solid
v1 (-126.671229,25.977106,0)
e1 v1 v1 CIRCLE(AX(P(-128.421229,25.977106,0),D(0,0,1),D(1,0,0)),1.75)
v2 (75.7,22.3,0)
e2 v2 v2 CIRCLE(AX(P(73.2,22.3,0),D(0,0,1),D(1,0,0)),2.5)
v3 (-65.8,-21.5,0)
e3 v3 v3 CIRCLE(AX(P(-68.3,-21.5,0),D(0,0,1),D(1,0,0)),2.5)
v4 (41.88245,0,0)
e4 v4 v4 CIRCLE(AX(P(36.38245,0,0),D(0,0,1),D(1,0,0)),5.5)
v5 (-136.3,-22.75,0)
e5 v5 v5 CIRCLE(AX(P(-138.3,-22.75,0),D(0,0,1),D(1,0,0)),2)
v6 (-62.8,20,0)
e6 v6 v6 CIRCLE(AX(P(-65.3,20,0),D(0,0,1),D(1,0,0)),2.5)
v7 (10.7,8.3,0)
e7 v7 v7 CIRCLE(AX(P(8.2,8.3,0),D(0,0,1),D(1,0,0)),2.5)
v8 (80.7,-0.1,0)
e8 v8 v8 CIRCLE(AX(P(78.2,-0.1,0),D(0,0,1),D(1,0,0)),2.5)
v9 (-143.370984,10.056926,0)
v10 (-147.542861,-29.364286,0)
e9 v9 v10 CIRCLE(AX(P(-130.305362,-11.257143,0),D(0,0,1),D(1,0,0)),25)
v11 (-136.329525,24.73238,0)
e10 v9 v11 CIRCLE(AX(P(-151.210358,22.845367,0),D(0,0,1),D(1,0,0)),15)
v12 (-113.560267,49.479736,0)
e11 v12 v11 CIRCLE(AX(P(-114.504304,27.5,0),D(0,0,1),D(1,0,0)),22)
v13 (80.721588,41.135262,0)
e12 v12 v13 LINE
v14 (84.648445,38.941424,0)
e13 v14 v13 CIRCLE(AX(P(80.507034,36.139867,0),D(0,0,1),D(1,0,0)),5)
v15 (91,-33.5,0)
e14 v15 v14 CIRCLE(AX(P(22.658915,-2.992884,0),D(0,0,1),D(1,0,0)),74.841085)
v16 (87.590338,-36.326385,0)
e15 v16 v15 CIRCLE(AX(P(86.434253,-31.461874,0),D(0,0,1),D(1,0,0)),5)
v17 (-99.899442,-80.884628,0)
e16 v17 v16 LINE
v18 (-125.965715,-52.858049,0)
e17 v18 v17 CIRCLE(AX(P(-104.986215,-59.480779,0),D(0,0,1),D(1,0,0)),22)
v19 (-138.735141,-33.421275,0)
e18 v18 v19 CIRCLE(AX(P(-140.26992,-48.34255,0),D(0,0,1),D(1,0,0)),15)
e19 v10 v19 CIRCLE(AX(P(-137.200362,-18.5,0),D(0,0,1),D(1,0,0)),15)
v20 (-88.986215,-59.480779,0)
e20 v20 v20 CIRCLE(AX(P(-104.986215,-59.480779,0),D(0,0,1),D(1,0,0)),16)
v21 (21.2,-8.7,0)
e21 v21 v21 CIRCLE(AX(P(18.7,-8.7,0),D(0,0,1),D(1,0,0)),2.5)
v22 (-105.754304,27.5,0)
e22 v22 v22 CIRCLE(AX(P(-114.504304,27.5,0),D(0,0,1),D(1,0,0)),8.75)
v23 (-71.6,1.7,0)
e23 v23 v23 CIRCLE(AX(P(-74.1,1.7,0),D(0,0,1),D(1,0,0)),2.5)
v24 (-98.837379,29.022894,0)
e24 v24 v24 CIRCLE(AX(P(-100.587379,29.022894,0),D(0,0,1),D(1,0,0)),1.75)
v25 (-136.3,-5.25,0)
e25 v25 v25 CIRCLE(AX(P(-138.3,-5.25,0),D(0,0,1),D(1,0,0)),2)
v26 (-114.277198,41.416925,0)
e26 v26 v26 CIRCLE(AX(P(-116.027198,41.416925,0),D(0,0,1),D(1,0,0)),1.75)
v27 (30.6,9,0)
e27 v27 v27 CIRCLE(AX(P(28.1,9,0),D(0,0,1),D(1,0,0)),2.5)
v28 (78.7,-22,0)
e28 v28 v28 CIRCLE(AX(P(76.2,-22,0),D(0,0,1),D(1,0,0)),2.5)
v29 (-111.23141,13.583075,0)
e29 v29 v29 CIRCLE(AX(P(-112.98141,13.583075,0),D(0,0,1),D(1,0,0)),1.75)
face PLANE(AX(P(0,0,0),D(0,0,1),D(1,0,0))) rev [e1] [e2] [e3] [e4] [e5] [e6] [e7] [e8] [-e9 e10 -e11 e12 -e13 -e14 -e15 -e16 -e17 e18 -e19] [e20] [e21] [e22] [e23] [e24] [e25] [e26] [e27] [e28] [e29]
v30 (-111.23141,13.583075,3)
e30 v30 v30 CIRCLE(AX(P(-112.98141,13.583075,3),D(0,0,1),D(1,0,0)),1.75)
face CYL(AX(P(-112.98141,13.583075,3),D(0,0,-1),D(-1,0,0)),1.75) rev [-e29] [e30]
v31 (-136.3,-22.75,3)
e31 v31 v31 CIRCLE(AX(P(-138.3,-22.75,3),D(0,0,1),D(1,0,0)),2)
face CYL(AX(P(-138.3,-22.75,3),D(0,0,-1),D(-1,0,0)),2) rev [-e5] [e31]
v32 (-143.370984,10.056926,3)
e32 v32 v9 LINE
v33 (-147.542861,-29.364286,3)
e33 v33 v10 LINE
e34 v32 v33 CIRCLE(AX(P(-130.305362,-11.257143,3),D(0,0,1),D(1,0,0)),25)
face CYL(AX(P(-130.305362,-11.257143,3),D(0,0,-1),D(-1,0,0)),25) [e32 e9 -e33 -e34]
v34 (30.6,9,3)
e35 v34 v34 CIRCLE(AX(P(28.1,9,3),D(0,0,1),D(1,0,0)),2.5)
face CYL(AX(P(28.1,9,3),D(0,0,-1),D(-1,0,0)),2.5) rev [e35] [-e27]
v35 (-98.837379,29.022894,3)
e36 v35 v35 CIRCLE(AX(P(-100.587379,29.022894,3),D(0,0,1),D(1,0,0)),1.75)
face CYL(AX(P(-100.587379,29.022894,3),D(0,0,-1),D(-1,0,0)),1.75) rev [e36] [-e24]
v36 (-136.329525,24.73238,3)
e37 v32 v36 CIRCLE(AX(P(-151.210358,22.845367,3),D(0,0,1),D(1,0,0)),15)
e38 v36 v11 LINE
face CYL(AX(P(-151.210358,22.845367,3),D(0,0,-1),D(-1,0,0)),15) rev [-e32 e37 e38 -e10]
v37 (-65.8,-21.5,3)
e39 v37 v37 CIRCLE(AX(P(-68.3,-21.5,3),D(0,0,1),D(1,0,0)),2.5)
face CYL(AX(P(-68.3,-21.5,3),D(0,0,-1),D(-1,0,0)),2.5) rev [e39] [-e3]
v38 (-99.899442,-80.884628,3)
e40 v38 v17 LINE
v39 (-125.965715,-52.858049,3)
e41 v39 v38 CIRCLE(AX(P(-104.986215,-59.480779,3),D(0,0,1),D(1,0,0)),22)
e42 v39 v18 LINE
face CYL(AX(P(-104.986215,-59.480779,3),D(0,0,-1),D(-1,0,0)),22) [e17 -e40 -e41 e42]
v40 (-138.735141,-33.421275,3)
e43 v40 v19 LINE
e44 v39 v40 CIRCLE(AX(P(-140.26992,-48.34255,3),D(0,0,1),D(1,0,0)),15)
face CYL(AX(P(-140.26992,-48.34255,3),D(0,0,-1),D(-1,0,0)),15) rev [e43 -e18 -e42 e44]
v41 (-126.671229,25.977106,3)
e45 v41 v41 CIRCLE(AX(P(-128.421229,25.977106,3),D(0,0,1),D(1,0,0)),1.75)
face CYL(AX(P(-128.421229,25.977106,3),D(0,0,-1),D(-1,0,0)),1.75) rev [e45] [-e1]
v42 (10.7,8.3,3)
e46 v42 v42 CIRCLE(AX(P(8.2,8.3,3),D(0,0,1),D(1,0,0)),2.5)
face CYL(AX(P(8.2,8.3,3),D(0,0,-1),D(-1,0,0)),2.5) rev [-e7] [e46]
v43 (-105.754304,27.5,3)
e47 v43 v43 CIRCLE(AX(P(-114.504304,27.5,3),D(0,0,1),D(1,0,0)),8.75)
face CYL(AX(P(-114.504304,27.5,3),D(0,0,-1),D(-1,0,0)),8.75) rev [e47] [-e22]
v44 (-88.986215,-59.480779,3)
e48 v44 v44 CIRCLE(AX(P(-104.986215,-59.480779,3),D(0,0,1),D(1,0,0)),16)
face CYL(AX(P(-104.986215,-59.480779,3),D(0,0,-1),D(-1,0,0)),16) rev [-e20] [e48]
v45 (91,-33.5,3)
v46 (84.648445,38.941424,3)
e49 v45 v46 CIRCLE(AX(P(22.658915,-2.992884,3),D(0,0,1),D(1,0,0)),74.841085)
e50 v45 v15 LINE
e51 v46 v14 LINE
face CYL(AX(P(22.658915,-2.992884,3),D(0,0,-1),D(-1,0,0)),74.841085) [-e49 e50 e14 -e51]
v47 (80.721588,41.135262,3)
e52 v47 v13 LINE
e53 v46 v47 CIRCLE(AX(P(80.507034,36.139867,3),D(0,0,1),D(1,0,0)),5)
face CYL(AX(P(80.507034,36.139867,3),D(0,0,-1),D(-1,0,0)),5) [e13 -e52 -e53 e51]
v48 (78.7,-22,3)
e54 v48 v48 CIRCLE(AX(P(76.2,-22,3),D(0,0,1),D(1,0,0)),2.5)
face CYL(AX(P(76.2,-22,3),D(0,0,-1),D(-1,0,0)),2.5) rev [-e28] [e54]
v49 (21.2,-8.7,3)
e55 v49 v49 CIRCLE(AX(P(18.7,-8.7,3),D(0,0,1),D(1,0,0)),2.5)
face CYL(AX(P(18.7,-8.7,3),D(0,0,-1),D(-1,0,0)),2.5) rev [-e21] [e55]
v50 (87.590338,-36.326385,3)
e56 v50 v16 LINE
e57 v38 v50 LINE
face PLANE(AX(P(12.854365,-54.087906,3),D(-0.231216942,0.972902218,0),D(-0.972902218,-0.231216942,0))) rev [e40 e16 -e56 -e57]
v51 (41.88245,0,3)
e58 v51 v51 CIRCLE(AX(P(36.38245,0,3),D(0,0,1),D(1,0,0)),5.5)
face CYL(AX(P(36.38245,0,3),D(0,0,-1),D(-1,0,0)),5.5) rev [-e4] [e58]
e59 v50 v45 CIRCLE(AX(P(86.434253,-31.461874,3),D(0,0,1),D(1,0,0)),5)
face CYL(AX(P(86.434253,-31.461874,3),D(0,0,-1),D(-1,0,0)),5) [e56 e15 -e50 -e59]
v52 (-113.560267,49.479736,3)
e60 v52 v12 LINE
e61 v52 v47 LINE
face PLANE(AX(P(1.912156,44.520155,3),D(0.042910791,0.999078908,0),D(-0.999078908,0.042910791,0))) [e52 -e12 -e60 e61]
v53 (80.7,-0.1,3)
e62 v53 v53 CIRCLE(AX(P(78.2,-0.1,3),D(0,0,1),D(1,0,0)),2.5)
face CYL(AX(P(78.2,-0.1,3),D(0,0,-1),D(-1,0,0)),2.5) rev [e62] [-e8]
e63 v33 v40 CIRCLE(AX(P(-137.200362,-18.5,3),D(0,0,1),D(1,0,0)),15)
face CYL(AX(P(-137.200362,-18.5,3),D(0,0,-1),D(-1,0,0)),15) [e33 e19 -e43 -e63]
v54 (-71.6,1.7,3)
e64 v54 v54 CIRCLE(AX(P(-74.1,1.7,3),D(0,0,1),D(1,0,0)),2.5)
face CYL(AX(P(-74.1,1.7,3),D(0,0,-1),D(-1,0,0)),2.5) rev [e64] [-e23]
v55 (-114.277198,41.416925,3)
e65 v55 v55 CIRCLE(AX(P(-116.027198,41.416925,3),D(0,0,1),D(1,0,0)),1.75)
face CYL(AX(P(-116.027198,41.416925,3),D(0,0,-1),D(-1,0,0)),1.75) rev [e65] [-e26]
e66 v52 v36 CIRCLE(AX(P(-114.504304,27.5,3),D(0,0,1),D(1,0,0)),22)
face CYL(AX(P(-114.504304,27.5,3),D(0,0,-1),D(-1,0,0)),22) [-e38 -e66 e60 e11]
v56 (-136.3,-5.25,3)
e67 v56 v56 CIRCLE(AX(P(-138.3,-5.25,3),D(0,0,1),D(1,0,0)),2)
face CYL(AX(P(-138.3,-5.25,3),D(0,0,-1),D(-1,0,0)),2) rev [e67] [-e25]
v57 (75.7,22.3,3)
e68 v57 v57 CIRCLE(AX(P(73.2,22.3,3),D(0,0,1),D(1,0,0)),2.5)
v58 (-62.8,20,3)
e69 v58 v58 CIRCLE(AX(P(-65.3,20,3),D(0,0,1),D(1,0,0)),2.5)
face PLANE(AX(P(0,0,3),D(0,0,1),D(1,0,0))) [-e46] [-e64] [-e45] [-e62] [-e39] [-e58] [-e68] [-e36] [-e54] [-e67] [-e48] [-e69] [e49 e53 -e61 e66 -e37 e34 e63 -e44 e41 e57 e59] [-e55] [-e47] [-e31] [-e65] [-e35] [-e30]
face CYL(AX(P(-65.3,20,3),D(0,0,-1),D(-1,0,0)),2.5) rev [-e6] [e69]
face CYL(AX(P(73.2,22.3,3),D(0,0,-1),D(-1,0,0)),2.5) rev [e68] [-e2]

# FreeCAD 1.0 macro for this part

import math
import FreeCAD as App
import Part
import Sketcher

doc = App.newDocument("Part")
body = doc.addObject("PartDesign::Body", "Body")

# Sketch on XY plane
sketch1 = body.newObject("Sketcher::SketchObject", "Sketch")
sketch1.AttachmentSupport = (doc.getObject("XY_Plane"), [""])
sketch1.MapMode = "FlatFace"
sketch1.addGeometry([
    Part.ArcOfCircle(Part.Circle(App.Vector(-114.504304, 27.5, 0), App.Vector(0, 0, 1), 22), math.radians(87.540638), math.radians(187.227009)),  # 0
    Part.ArcOfCircle(Part.Circle(App.Vector(-151.210358, 22.845367, 0), App.Vector(0, 0, 1), 15), math.radians(-58.491511), math.radians(7.227009)),  # 1
    Part.ArcOfCircle(Part.Circle(App.Vector(-130.305362, -11.257143, 0), App.Vector(0, 0, 1), 25), math.radians(121.508489), math.radians(226.40946)),  # 2
    Part.ArcOfCircle(Part.Circle(App.Vector(-137.200362, -18.5, 0), App.Vector(0, 0, 1), 15), math.radians(-133.59054), math.radians(-95.872702)),  # 3
    Part.ArcOfCircle(Part.Circle(App.Vector(-140.26992, -48.34255, 0), App.Vector(0, 0, 1), 15), math.radians(-17.519671), math.radians(84.127298)),  # 4
    Part.ArcOfCircle(Part.Circle(App.Vector(-104.986215, -59.480779, 0), App.Vector(0, 0, 1), 22), math.radians(162.480329), math.radians(283.368728)),  # 5
    Part.LineSegment(App.Vector(-99.899443, -80.884628, 0), App.Vector(87.590338, -36.326385, 0)),  # 6
    Part.ArcOfCircle(Part.Circle(App.Vector(86.434253, -31.461874, 0), App.Vector(0, 0, 1), 5), math.radians(-76.631271), math.radians(-24.055744)),  # 7
    Part.ArcOfCircle(Part.Circle(App.Vector(22.658915, -2.992884, 0), App.Vector(0, 0, 1), 74.841085), math.radians(-24.055744), math.radians(34.077332)),  # 8
    Part.ArcOfCircle(Part.Circle(App.Vector(80.507034, 36.139867, 0), App.Vector(0, 0, 1), 5), math.radians(34.077332), math.radians(87.540638)),  # 9
    Part.LineSegment(App.Vector(80.721588, 41.135262, 0), App.Vector(-113.560267, 49.479736, 0)),  # 10
    Part.Circle(App.Vector(-104.986215, -59.480779, 0), App.Vector(0, 0, 1), 16),  # 11
    Part.Circle(App.Vector(-138.3, -22.75, 0), App.Vector(0, 0, 1), 2),  # 12
    Part.Circle(App.Vector(-68.3, -21.5, 0), App.Vector(0, 0, 1), 2.5),  # 13
    Part.Circle(App.Vector(76.2, -22, 0), App.Vector(0, 0, 1), 2.5),  # 14
    Part.Circle(App.Vector(-138.3, -5.25, 0), App.Vector(0, 0, 1), 2),  # 15
    Part.Circle(App.Vector(-74.1, 1.7, 0), App.Vector(0, 0, 1), 2.5),  # 16
    Part.Circle(App.Vector(-112.98141, 13.583075, 0), App.Vector(0, 0, 1), 1.75),  # 17
    Part.Circle(App.Vector(-128.421229, 25.977106, 0), App.Vector(0, 0, 1), 1.75),  # 18
    Part.Circle(App.Vector(-114.504304, 27.5, 0), App.Vector(0, 0, 1), 8.75),  # 19
    Part.Circle(App.Vector(-116.027198, 41.416925, 0), App.Vector(0, 0, 1), 1.75),  # 20
    Part.Circle(App.Vector(-100.587379, 29.022894, 0), App.Vector(0, 0, 1), 1.75),  # 21
    Part.Circle(App.Vector(-65.3, 20, 0), App.Vector(0, 0, 1), 2.5),  # 22
    Part.Circle(App.Vector(18.7, -8.7, 0), App.Vector(0, 0, 1), 2.5),  # 23
    Part.Circle(App.Vector(8.2, 8.3, 0), App.Vector(0, 0, 1), 2.5),  # 24
    Part.Circle(App.Vector(36.38245, 0, 0), App.Vector(0, 0, 1), 5.5),  # 25
    Part.Circle(App.Vector(28.1, 9, 0), App.Vector(0, 0, 1), 2.5),  # 26
    Part.Circle(App.Vector(78.2, -0.1, 0), App.Vector(0, 0, 1), 2.5),  # 27
    Part.Circle(App.Vector(73.2, 22.3, 0), App.Vector(0, 0, 1), 2.5),  # 28
], False)
sketch1.addConstraint([
    Sketcher.Constraint("Coincident", 0, 2, 1, 2),
    Sketcher.Constraint("Coincident", 1, 1, 2, 1),
    Sketcher.Constraint("Coincident", 2, 2, 3, 1),
    Sketcher.Constraint("Coincident", 3, 2, 4, 2),
    Sketcher.Constraint("Coincident", 4, 1, 5, 1),
    Sketcher.Constraint("Coincident", 5, 2, 6, 1),
    Sketcher.Constraint("Coincident", 6, 2, 7, 1),
    Sketcher.Constraint("Coincident", 7, 2, 8, 1),
    Sketcher.Constraint("Coincident", 8, 2, 9, 1),
    Sketcher.Constraint("Coincident", 9, 2, 10, 1),
    Sketcher.Constraint("Coincident", 10, 2, 0, 1),
    Sketcher.Constraint("Coincident", 11, 3, 5, 3),
    Sketcher.Constraint("Coincident", 19, 3, 0, 3),
    Sketcher.Constraint("PointOnObject", 25, 3, -1),
    Sketcher.Constraint("Diameter", 11, 32.0),
    Sketcher.Constraint("Diameter", 12, 4.0),
    Sketcher.Constraint("Diameter", 13, 5.0),
    Sketcher.Constraint("Diameter", 14, 5.0),
    Sketcher.Constraint("Diameter", 15, 4.0),
    Sketcher.Constraint("Diameter", 16, 5.0),
    Sketcher.Constraint("Diameter", 22, 5.0),
    Sketcher.Constraint("Diameter", 23, 5.0),
    Sketcher.Constraint("Diameter", 24, 5.0),
    Sketcher.Constraint("Diameter", 25, 11.0),
    Sketcher.Constraint("Diameter", 26, 5.0),
    Sketcher.Constraint("Diameter", 27, 5.0),
    Sketcher.Constraint("Diameter", 28, 5.0),
    Sketcher.Constraint("Radius", 0, 22.0),
    Sketcher.Constraint("Radius", 1, 15.0),
    Sketcher.Constraint("Radius", 2, 25.0),
    Sketcher.Constraint("Radius", 3, 15.0),
    Sketcher.Constraint("Radius", 4, 15.0),
    Sketcher.Constraint("Radius", 5, 22.0),
    Sketcher.Constraint("Radius", 7, 5.0),
    Sketcher.Constraint("Radius", 9, 5.0),
    Sketcher.Constraint("Diameter", 17, 3.5),
    Sketcher.Constraint("Diameter", 18, 3.5),
    Sketcher.Constraint("Diameter", 19, 17.5),
    Sketcher.Constraint("Diameter", 20, 3.5),
    Sketcher.Constraint("Diameter", 21, 3.5),
    Sketcher.Constraint("DistanceY", 14, 3, -1, 1, 22.0),
    Sketcher.Constraint("DistanceY", -1, 1, 22, 3, 20.0),
    Sketcher.Constraint("DistanceY", -1, 1, 26, 3, 9.0),
    Sketcher.Constraint("DistanceX", -1, 1, 7, 2, 91.0),
    Sketcher.Constraint("DistanceY", 3, 3, 0, 3, 46.0),
    Sketcher.Constraint("DistanceY", 13, 3, 0, 3, 49.0),
    Sketcher.Constraint("DistanceX", 13, 3, 22, 3, 3.0),
    Sketcher.Constraint("DistanceX", 13, 3, 23, 3, 87.0),
    Sketcher.Constraint("DistanceY", 23, 3, 24, 3, 17.0),
    Sketcher.Constraint("DistanceX", 24, 3, 14, 3, 68.0),
    Sketcher.Constraint("DistanceX", 14, 3, 27, 3, 2.0),
    Sketcher.Constraint("DistanceX", 28, 3, 27, 3, 5.0),
    Sketcher.Constraint("DistanceY", -1, 1, 0, 3, 27.5),
    Sketcher.Constraint("DistanceX", 12, 3, -1, 1, 138.3),
    Sketcher.Constraint("DistanceX", 13, 3, -1, 1, 68.3),
    Sketcher.Constraint("DistanceX", -1, 1, 14, 3, 76.2),
    Sketcher.Constraint("DistanceX", 15, 3, -1, 1, 138.3),
    Sketcher.Constraint("DistanceX", 16, 3, -1, 1, 74.1),
    Sketcher.Constraint("DistanceY", -1, 1, 16, 3, 1.7),
    Sketcher.Constraint("DistanceY", 23, 3, -1, 1, 8.7),
    Sketcher.Constraint("DistanceX", -1, 1, 26, 3, 28.1),
    Sketcher.Constraint("DistanceY", 27, 3, -1, 1, 0.1),
    Sketcher.Constraint("DistanceY", -1, 1, 28, 3, 22.3),
    Sketcher.Constraint("DistanceY", 7, 2, -1, 1, 33.5),
    Sketcher.Constraint("DistanceY", 12, 3, 15, 3, 17.5),
    Sketcher.Constraint("DistanceY", 12, 3, -1, 1, 22.75),
    Sketcher.Constraint("Radius", 8, 74.841085),
    Sketcher.Constraint("DistanceX", 3, 3, 2, 3, 6.895),
    Sketcher.Constraint("DistanceX", 20, 3, -1, 1, 116.027198),
    Sketcher.Constraint("DistanceX", 2, 2, 3, 3, 10.3425),
    Sketcher.Constraint("DistanceY", 4, 1, 4, 3, 4.515498),
    Sketcher.Constraint("DistanceX", 4, 1, 5, 3, 20.9795),
    Sketcher.Constraint("DistanceX", 3, 2, 5, 2, 38.835698),
    Sketcher.Constraint("Distance", 10, 194.460971),
    Sketcher.Constraint("DistanceX", 3, 3, -1, 1, 137.200362),
    Sketcher.Constraint("DistanceX", 4, 3, -1, 1, 140.26992),
    Sketcher.Constraint("DistanceX", 17, 3, -1, 1, 112.98141),
    Sketcher.Constraint("DistanceX", 18, 3, -1, 1, 128.421229),
    Sketcher.Constraint("DistanceX", 21, 3, -1, 1, 100.587379),
    Sketcher.Constraint("DistanceX", -1, 1, 25, 3, 36.38245),
    Sketcher.Constraint("DistanceY", -1, 1, 0, 2, 24.73238),
    Sketcher.Constraint("DistanceX", 3, 2, -1, 1, 138.735141),
    Sketcher.Constraint("DistanceX", -1, 1, 6, 2, 87.590338),
    Sketcher.Constraint("DistanceX", -1, 1, 9, 2, 80.721588),
    Sketcher.Constraint("DistanceY", -1, 1, 9, 2, 41.135262),
    Sketcher.Constraint("DistanceY", 2, 3, 1, 3, 34.10251),
    Sketcher.Constraint("DistanceX", 5, 3, 7, 3, 191.420468),
    Sketcher.Constraint("DistanceX", 8, 3, 7, 3, 63.775338),
    Sketcher.Constraint("DistanceY", 2, 3, 17, 3, 24.840218),
    Sketcher.Constraint("DistanceY", 17, 3, 18, 3, 12.39403),
    Sketcher.Constraint("DistanceY", 18, 3, 20, 3, 15.439819),
    Sketcher.Constraint("DistanceY", 21, 3, 20, 3, 12.39403),
    Sketcher.Constraint("DistanceY", 1, 1, 1, 3, 12.788441),
    Sketcher.Constraint("DistanceX", 9, 3, 8, 2, 4.14141),
])
pad1 = body.newObject("PartDesign::Pad", "Pad")
pad1.Profile = sketch1
pad1.Length = 3

doc.recompute()
